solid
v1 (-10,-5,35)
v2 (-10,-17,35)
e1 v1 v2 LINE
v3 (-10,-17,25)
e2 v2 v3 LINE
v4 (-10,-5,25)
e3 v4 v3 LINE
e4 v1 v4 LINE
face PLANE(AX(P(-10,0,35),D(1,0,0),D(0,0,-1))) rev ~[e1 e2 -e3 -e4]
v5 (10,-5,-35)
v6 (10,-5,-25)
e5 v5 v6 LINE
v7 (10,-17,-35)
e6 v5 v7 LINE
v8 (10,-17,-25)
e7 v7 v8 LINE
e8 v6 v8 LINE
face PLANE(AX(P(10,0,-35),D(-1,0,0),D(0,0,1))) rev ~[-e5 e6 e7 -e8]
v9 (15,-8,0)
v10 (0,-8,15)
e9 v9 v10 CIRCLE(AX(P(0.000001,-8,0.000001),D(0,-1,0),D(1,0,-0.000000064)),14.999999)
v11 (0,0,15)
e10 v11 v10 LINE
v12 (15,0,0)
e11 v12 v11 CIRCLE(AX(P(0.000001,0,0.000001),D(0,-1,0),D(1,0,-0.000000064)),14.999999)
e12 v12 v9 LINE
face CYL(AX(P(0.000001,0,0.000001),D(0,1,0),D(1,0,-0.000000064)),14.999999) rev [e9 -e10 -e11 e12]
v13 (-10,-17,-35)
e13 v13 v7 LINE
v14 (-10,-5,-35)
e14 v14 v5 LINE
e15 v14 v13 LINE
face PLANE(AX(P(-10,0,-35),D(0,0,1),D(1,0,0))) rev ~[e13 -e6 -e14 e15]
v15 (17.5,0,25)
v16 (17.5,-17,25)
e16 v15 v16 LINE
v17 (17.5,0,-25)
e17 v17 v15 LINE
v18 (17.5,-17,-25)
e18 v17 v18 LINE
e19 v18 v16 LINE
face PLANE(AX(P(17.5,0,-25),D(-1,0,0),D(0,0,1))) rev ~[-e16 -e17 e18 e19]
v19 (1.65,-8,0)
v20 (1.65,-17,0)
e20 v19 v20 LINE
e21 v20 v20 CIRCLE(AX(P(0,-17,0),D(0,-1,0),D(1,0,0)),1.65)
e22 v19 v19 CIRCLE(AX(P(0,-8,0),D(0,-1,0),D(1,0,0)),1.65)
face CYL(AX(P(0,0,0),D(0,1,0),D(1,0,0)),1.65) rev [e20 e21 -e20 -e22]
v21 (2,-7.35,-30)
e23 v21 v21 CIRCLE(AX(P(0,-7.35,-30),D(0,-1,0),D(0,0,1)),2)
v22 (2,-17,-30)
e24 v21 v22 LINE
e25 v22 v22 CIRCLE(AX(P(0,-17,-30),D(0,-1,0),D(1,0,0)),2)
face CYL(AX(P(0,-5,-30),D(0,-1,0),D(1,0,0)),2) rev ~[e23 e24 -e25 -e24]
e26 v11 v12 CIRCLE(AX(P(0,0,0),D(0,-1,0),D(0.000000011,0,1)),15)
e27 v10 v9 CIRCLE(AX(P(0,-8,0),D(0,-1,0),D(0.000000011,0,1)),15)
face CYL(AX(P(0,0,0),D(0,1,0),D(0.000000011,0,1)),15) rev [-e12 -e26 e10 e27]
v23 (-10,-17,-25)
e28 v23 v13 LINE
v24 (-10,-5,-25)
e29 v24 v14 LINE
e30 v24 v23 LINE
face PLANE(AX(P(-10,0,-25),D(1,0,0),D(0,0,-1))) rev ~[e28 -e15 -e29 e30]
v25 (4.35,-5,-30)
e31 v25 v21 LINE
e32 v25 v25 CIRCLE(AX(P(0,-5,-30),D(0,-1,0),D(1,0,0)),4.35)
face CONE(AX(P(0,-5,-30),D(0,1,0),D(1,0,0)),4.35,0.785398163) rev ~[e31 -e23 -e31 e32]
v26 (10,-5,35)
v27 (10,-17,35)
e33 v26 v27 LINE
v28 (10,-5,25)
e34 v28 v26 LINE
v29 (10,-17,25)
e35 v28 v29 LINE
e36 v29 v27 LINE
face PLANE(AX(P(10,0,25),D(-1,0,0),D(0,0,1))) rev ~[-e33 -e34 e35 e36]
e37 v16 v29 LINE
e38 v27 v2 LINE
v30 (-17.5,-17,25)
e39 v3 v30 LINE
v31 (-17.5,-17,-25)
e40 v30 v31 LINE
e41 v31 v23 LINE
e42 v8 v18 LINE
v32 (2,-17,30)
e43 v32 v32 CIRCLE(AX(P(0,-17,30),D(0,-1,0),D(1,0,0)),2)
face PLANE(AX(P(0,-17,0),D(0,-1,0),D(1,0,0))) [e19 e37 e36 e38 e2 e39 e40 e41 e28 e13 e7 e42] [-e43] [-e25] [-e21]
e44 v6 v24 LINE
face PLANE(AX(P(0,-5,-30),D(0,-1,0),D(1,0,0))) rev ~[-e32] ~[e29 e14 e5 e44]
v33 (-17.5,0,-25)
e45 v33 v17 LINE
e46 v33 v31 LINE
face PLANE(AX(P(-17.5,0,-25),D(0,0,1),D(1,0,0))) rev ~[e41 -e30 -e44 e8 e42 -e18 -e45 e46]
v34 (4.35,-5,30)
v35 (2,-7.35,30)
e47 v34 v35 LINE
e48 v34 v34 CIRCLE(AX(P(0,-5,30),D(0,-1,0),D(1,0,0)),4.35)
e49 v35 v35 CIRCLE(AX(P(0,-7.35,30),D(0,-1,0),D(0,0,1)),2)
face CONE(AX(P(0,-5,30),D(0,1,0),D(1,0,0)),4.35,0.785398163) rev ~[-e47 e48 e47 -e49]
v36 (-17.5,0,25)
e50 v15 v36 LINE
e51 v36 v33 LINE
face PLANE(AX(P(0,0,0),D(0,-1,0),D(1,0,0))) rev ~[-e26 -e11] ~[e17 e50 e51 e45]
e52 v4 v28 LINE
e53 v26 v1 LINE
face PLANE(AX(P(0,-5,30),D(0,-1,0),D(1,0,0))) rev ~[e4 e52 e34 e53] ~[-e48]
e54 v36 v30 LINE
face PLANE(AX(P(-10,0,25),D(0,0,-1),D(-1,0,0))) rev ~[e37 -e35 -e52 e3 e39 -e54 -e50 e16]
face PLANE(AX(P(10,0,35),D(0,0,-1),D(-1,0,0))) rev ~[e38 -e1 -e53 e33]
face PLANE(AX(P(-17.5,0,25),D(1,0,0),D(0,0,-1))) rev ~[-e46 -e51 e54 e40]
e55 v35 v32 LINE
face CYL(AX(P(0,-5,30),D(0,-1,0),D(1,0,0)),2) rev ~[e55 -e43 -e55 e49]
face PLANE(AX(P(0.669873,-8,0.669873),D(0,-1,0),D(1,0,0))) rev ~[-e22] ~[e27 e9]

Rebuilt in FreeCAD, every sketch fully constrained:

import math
import FreeCAD as App
import Part
import Sketcher

V = App.Vector


def add_polygon(sketch, points):
    """Adds a closed chain of lines whose ends are joined by coincident constraints."""
    first, n = sketch.GeometryCount, len(points)
    for a, b in zip(points, points[1:] + points[:1]):
        sketch.addGeometry(Part.LineSegment(App.Vector(*a, 0), App.Vector(*b, 0)), False)
    for i in range(n):
        sketch.addConstraint(Sketcher.Constraint("Coincident", first + i, 2, first + (i + 1) % n, 1))

doc = App.newDocument("Part")
body = doc.addObject("PartDesign::Body", "Body")

sketch1 = body.newObject("Sketcher::SketchObject", "Sketch")
sketch1.AttachmentSupport = (doc.getObject("XZ_Plane"), [""])
sketch1.MapMode = "FlatFace"
add_polygon(sketch1, [(-17.5, 25), (-17.5, -25), (-10, -25), (-10, -35), (10, -35), (10, -25), (17.5, -25), (17.5, 25), (10, 25), (10, 35), (-10, 35), (-10, 25)])
sketch1.addGeometry(Part.Circle(V(0, 0, 0), V(0, 0, 1), 1.6), False)
sketch1.addConstraint([
    Sketcher.Constraint("Vertical", 0),
    Sketcher.Constraint("Horizontal", 1),
    Sketcher.Constraint("Vertical", 2),
    Sketcher.Constraint("Horizontal", 3),
    Sketcher.Constraint("Vertical", 4),
    Sketcher.Constraint("Horizontal", 5),
    Sketcher.Constraint("Vertical", 6),
    Sketcher.Constraint("Horizontal", 7),
    Sketcher.Constraint("Vertical", 8),
    Sketcher.Constraint("Horizontal", 9),
    Sketcher.Constraint("Vertical", 10),
    Sketcher.Constraint("Horizontal", 11),
    Sketcher.Constraint("Coincident", 12, 3, -1, 1),
    Sketcher.Constraint("Symmetric", 0, 2, 6, 2, -1, 1),
    Sketcher.Constraint("Symmetric", 2, 2, 8, 2, -1, 1),
    Sketcher.Constraint("Symmetric", 4, 2, 10, 2, -1, 1),
    Sketcher.Constraint("Symmetric", 1, 2, 4, 2, -2),
    Sketcher.Constraint("Diameter", 12, 3.3),
    Sketcher.Constraint("DistanceX", 3, 1, 3, 2, 20.0),
    Sketcher.Constraint("DistanceY", 0, 2, 0, 1, 50.0),
    Sketcher.Constraint("DistanceY", 2, 2, 2, 1, 10.0),
    Sketcher.Constraint("DistanceX", 1, 1, 1, 2, 7.5),
])
pad1 = body.newObject("PartDesign::Pad", "Pad")
pad1.Profile = sketch1
pad1.Length = 17

sketch2 = body.newObject("Sketcher::SketchObject", "Sketch001")
sketch2.AttachmentSupport = (doc.getObject("XZ_Plane"), [""])
sketch2.MapMode = "FlatFace"
sketch2.addGeometry([
    Part.ArcOfCircle(Part.Circle(V(0, 0, 0), V(0, 0, 1), 15), math.radians(90), math.radians(360)),
    Part.ArcOfCircle(Part.Circle(V(0, 0, 0), V(0, 0, 1), 15), math.radians(0), math.radians(90)),
    Part.Circle(V(0, 0, 0), V(0, 0, 1), 1.6),
], False)
sketch2.addConstraint([
    Sketcher.Constraint("Tangent", 0, 1, 1, 2),
    Sketcher.Constraint("Coincident", 1, 1, 0, 2),
    Sketcher.Constraint("Coincident", 0, 3, -1, 1),
    Sketcher.Constraint("Coincident", 2, 3, -1, 1),
    Sketcher.Constraint("PointOnObject", 0, 1, -2),
    Sketcher.Constraint("PointOnObject", 1, 1, -1),
    Sketcher.Constraint("Radius", 0, 15.0),
    Sketcher.Constraint("Diameter", 2, 3.3),
])
pocket1 = body.newObject("PartDesign::Pocket", "Pocket")
pocket1.Profile = sketch2
pocket1.Length = 8
pocket1.Reversed = True

sketch3 = body.newObject("Sketcher::SketchObject", "Sketch002")
sketch3.AttachmentSupport = (doc.getObject("XZ_Plane"), [""])
sketch3.MapMode = "FlatFace"
add_polygon(sketch3, [(-10, 25), (10, 25), (10, 35), (-10, 35)])
add_polygon(sketch3, [(10, -35), (10, -25), (-10, -25), (-10, -35)])
sketch3.addConstraint([
    Sketcher.Constraint("Horizontal", 0),
    Sketcher.Constraint("Vertical", 1),
    Sketcher.Constraint("Horizontal", 2),
    Sketcher.Constraint("Vertical", 3),
    Sketcher.Constraint("Vertical", 4),
    Sketcher.Constraint("Horizontal", 5),
    Sketcher.Constraint("Vertical", 6),
    Sketcher.Constraint("Horizontal", 7),
    Sketcher.Constraint("Symmetric", 3, 2, 4, 2, -1, 1),
    Sketcher.Constraint("Symmetric", 1, 2, 6, 2, -1, 1),
    Sketcher.Constraint("Vertical", 1, 2, 4, 2),
    Sketcher.Constraint("DistanceX", 0, 1, 0, 2, 20.0),
    Sketcher.Constraint("DistanceY", 1, 1, 1, 2, 10.0),
    Sketcher.Constraint("DistanceY", -1, 1, 0, 2, 25.0),
])
pocket2 = body.newObject("PartDesign::Pocket", "Pocket001")
pocket2.Profile = sketch3
pocket2.Length = 5
pocket2.Reversed = True

sketch4 = body.newObject("Sketcher::SketchObject", "Sketch003")
sketch4.AttachmentSupport = (doc.getObject("XZ_Plane"), [""])
sketch4.MapMode = "FlatFace"
sketch4.AttachmentOffset = App.Placement(V(0, 0, 5), App.Rotation())
sketch4.addGeometry([
    Part.Circle(V(0, -30, 0), V(0, 0, 1), 2),
    Part.Circle(V(0, 30, 0), V(0, 0, 1), 2),
], False)
sketch4.addConstraint([
    Sketcher.Constraint("Equal", 0, 1),
    Sketcher.Constraint("Symmetric", 0, 3, 1, 3, -1, 1),
    Sketcher.Constraint("PointOnObject", 0, 3, -2),
    Sketcher.Constraint("Diameter", 0, 4.0),
    Sketcher.Constraint("DistanceY", 0, 3, -1, 1, 30.0),
])
doc.recompute()
hole = body.newObject("PartDesign::Hole", "Hole")
hole.Profile = sketch4
hole.ThreadType = "None"
hole.Diameter = 4
hole.DepthType = "ThroughAll"
hole.HoleCutType = "Countersink"
hole.HoleCutDiameter = 8.7
hole.HoleCutCountersinkAngle = 90
hole.Reversed = True

doc.recompute()
